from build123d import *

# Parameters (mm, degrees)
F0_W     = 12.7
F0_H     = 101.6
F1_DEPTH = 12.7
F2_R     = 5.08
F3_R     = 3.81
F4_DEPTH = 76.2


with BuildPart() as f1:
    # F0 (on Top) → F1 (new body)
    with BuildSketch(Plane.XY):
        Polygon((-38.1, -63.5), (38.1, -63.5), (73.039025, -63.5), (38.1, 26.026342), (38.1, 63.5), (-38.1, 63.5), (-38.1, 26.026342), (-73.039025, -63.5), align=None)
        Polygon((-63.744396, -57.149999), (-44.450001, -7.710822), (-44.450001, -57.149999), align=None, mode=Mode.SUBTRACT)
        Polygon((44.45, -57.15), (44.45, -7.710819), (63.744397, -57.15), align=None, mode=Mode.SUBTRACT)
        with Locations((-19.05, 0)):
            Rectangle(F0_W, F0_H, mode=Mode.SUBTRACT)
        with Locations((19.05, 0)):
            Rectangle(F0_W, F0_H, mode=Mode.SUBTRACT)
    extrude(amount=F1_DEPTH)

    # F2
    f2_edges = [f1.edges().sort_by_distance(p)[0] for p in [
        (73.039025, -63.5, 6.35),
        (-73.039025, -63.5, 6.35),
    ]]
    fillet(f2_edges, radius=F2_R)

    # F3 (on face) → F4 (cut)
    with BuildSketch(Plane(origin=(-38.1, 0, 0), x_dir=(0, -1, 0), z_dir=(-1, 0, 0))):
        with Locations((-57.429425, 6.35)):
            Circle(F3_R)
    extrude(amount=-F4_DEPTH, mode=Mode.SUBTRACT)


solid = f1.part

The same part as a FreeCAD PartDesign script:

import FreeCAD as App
import Part
import Sketcher
from FreeCAD import Vector
Q = App.Units.Quantity


def edges_at(feature, points):
    """Names of the edges that pass closest to the given points."""
    edges = feature.Shape.Edges
    near = lambda p: min(range(len(edges)), key=lambda i: edges[i].distToShape(Part.Vertex(*p))[0])
    return sorted({f"Edge{near(p) + 1}" for p in points})

doc = App.newDocument("Part")
body = doc.addObject("PartDesign::Body", "Body")

# Sketch on XY plane
sketch1 = body.newObject("Sketcher::SketchObject", "Sketch")
sketch1.AttachmentSupport = (doc.getObject("XY_Plane"), [""])
sketch1.MapMode = "FlatFace"
sketch1.addGeometry([
    Part.LineSegment(Vector(73.039025, -63.5, 0), Vector(38.1, 26.026342, 0)),  # 0
    Part.LineSegment(Vector(38.1, 26.026342, 0), Vector(38.1, 63.5, 0)),  # 1
    Part.LineSegment(Vector(38.1, 63.5, 0), Vector(-38.1, 63.5, 0)),  # 2
    Part.LineSegment(Vector(-38.1, 63.5, 0), Vector(-38.1, 26.026342, 0)),  # 3
    Part.LineSegment(Vector(-38.1, 26.026342, 0), Vector(-73.039025, -63.5, 0)),  # 4
    Part.LineSegment(Vector(-73.039025, -63.5, 0), Vector(73.039025, -63.5, 0)),  # 5
    Part.LineSegment(Vector(-44.450001, -57.149999, 0), Vector(-63.744396, -57.149999, 0)),  # 6
    Part.LineSegment(Vector(-63.744396, -57.149999, 0), Vector(-44.450001, -7.710822, 0)),  # 7
    Part.LineSegment(Vector(-44.450001, -7.710822, 0), Vector(-44.450001, -57.149999, 0)),  # 8
    Part.LineSegment(Vector(63.744397, -57.15, 0), Vector(44.45, -57.15, 0)),  # 9
    Part.LineSegment(Vector(44.45, -57.15, 0), Vector(44.45, -7.710819, 0)),  # 10
    Part.LineSegment(Vector(44.45, -7.710819, 0), Vector(63.744397, -57.15, 0)),  # 11
    Part.LineSegment(Vector(-12.7, -50.8, 0), Vector(-25.4, -50.8, 0)),  # 12
    Part.LineSegment(Vector(-25.4, -50.8, 0), Vector(-25.4, 50.8, 0)),  # 13
    Part.LineSegment(Vector(-25.4, 50.8, 0), Vector(-12.7, 50.8, 0)),  # 14
    Part.LineSegment(Vector(-12.7, 50.8, 0), Vector(-12.7, -50.8, 0)),  # 15
    Part.LineSegment(Vector(25.4, -50.8, 0), Vector(12.7, -50.8, 0)),  # 16
    Part.LineSegment(Vector(12.7, -50.8, 0), Vector(12.7, 50.8, 0)),  # 17
    Part.LineSegment(Vector(12.7, 50.8, 0), Vector(25.4, 50.8, 0)),  # 18
    Part.LineSegment(Vector(25.4, 50.8, 0), Vector(25.4, -50.8, 0)),  # 19
], False)
sketch1.addConstraint([
    Sketcher.Constraint("Coincident", 0, 2, 1, 1),
    Sketcher.Constraint("Coincident", 1, 2, 2, 1),
    Sketcher.Constraint("Coincident", 2, 2, 3, 1),
    Sketcher.Constraint("Coincident", 3, 2, 4, 1),
    Sketcher.Constraint("Coincident", 4, 2, 5, 1),
    Sketcher.Constraint("Coincident", 5, 2, 0, 1),
    Sketcher.Constraint("Coincident", 6, 2, 7, 1),
    Sketcher.Constraint("Coincident", 7, 2, 8, 1),
    Sketcher.Constraint("Coincident", 8, 2, 6, 1),
    Sketcher.Constraint("Coincident", 9, 2, 10, 1),
    Sketcher.Constraint("Coincident", 10, 2, 11, 1),
    Sketcher.Constraint("Coincident", 11, 2, 9, 1),
    Sketcher.Constraint("Coincident", 12, 2, 13, 1),
    Sketcher.Constraint("Coincident", 13, 2, 14, 1),
    Sketcher.Constraint("Coincident", 14, 2, 15, 1),
    Sketcher.Constraint("Coincident", 15, 2, 12, 1),
    Sketcher.Constraint("Coincident", 16, 2, 17, 1),
    Sketcher.Constraint("Coincident", 17, 2, 18, 1),
    Sketcher.Constraint("Coincident", 18, 2, 19, 1),
    Sketcher.Constraint("Coincident", 19, 2, 16, 1),
    Sketcher.Constraint("Vertical", 1),
    Sketcher.Constraint("Horizontal", 2),
    Sketcher.Constraint("Vertical", 3),
    Sketcher.Constraint("Horizontal", 5),
    Sketcher.Constraint("Horizontal", 6),
    Sketcher.Constraint("Vertical", 8),
    Sketcher.Constraint("Horizontal", 9),
    Sketcher.Constraint("Vertical", 10),
    Sketcher.Constraint("Horizontal", 12),
    Sketcher.Constraint("Vertical", 13),
    Sketcher.Constraint("Horizontal", 14),
    Sketcher.Constraint("Vertical", 15),
    Sketcher.Constraint("Horizontal", 16),
    Sketcher.Constraint("Vertical", 17),
    Sketcher.Constraint("Horizontal", 18),
    Sketcher.Constraint("Vertical", 19),
    Sketcher.Constraint("DistanceX", 2, 2, 2, 1, Q("3 in")),
    Sketcher.Constraint("DistanceY", 13, 1, 13, 2, Q("4 in")),
    Sketcher.Constraint("DistanceY", 17, 1, 17, 2, Q("4 in")),
    Sketcher.Constraint("DistanceX", 12, 2, 12, 1, Q("0.5 in")),
    Sketcher.Constraint("DistanceX", 16, 2, 16, 1, Q("0.5 in")),
    Sketcher.Constraint("DistanceX", 12, 2, -1, 1, Q("1 in")),
    Sketcher.Constraint("DistanceY", 12, 2, -1, 1, Q("2 in")),
    Sketcher.Constraint("DistanceY", 16, 2, -1, 1, Q("2 in")),
    Sketcher.Constraint("DistanceX", -1, 1, 18, 2, Q("1 in")),
    Sketcher.Constraint("DistanceY", 4, 2, 2, 2, Q("5 in")),
    Sketcher.Constraint("DistanceX", 2, 2, 14, 2, Q("1 in")),
    Sketcher.Constraint("DistanceY", -1, 1, 1, 2, Q("2.5 in")),
    Sketcher.Constraint("DistanceX", 8, 2, 9, 2, Q("3.5 in")),
    Sketcher.Constraint("DistanceY", 6, 2, -1, 1, Q("2.25 in")),
    Sketcher.Constraint("DistanceX", 7, 2, -1, 1, Q("1.75 in")),
    Sketcher.Constraint("DistanceY", 9, 2, -1, 1, Q("2.25 in")),
    Sketcher.Constraint("Distance", 7, Q("2.0894001 in")),
    Sketcher.Constraint("DistanceX", 5, 1, 5, 2, Q("146.07805 mm")),
    Sketcher.Constraint("DistanceY", 10, 1, 10, 2, Q("49.439181 mm")),
    Sketcher.Constraint("DistanceX", 8, 2, 11, 2, Q("108.194398 mm")),
    Sketcher.Constraint("DistanceX", 6, 2, 6, 1, Q("19.294395 mm")),
    Sketcher.Constraint("DistanceY", 1, 1, 1, 2, Q("37.473658 mm")),
    Sketcher.Constraint("DistanceY", 3, 2, 3, 1, Q("37.473658 mm")),
    Sketcher.Constraint("DistanceX", 4, 2, 6, 2, Q("9.294629 mm")),
])
pad1 = body.newObject("PartDesign::Pad", "Pad")
pad1.Profile = sketch1
pad1.Length = Q("0.5 in")
doc.recompute()

fillet = body.newObject("PartDesign::Fillet", "Fillet")
fillet.Base = (pad1, edges_at(pad1, [(73.039, -63.5, 6.35), (-73.039, -63.5, 6.35)]))
fillet.Radius = Q("0.2 in")

# Sketch on YZ plane
sketch2 = body.newObject("Sketcher::SketchObject", "Sketch001")
sketch2.AttachmentSupport = (doc.getObject("YZ_Plane"), [""])
sketch2.MapMode = "FlatFace"
sketch2.AttachmentOffset = App.Placement(Vector(0, 0, -1.5 * 25.4), App.Rotation())
sketch2.addGeometry(Part.Circle(Vector(57.4, 6.3, 0), Vector(0, 0, 1), 3.8), False)
sketch2.addConstraint([
    Sketcher.Constraint("Diameter", 0, Q("0.3 in")),
    Sketcher.Constraint("DistanceY", -1, 1, 0, 3, Q("0.25 in")),
    Sketcher.Constraint("DistanceX", -1, 1, 0, 3, Q("57.429425 mm")),
])
pocket1 = body.newObject("PartDesign::Pocket", "Pocket")
pocket1.Profile = sketch2
pocket1.Length = Q("3 in")
pocket1.Reversed = True

doc.recompute()
